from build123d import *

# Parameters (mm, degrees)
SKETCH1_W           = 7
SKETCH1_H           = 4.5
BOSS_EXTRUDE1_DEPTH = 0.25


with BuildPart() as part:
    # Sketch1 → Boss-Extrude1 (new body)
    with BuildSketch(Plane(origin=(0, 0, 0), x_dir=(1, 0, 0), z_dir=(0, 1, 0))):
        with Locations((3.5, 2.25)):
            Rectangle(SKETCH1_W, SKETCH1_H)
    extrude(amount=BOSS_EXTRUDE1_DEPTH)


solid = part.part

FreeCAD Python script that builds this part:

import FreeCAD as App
import Part
import Sketcher
Q = App.Units.Quantity

doc = App.newDocument("Part")
body = doc.addObject("PartDesign::Body", "Body")

# Sketch on XZ plane
sketch1 = doc.addObject("Sketcher::SketchObject", "Sketch")
body.addObject(sketch1)
sketch1.AttachmentSupport = (doc.XZ_Plane, [""])
sketch1.MapMode = "FlatFace"
sketch1.addGeometry([
    Part.LineSegment(App.Vector(0, -4.5, 0), App.Vector(0, 0, 0)),
    Part.LineSegment(App.Vector(0, 0, 0), App.Vector(7, 0, 0)),
    Part.LineSegment(App.Vector(7, 0, 0), App.Vector(7, -4.5, 0)),
    Part.LineSegment(App.Vector(7, -4.5, 0), App.Vector(0, -4.5, 0)),
], False)
sketch1.addConstraint([
    Sketcher.Constraint("Coincident", 0, 2, 1, 1),
    Sketcher.Constraint("Coincident", 1, 2, 2, 1),
    Sketcher.Constraint("Coincident", 2, 2, 3, 1),
    Sketcher.Constraint("Coincident", 3, 2, 0, 1),
    Sketcher.Constraint("Vertical", 0),
    Sketcher.Constraint("Horizontal", 1),
    Sketcher.Constraint("Vertical", 2),
    Sketcher.Constraint("Horizontal", 3),
    Sketcher.Constraint("Coincident", 0, 2, -1, 1),
    Sketcher.Constraint("DistanceX", 1, 1, 1, 2, Q("7 mm")),
    Sketcher.Constraint("DistanceY", 0, 1, 0, 2, Q("4.5 mm")),
])
pad1 = doc.addObject("PartDesign::Pad", "Pad")
body.addObject(pad1)
pad1.Profile = sketch1
pad1.Length = 0.25
pad1.Reversed = True

doc.recompute()
